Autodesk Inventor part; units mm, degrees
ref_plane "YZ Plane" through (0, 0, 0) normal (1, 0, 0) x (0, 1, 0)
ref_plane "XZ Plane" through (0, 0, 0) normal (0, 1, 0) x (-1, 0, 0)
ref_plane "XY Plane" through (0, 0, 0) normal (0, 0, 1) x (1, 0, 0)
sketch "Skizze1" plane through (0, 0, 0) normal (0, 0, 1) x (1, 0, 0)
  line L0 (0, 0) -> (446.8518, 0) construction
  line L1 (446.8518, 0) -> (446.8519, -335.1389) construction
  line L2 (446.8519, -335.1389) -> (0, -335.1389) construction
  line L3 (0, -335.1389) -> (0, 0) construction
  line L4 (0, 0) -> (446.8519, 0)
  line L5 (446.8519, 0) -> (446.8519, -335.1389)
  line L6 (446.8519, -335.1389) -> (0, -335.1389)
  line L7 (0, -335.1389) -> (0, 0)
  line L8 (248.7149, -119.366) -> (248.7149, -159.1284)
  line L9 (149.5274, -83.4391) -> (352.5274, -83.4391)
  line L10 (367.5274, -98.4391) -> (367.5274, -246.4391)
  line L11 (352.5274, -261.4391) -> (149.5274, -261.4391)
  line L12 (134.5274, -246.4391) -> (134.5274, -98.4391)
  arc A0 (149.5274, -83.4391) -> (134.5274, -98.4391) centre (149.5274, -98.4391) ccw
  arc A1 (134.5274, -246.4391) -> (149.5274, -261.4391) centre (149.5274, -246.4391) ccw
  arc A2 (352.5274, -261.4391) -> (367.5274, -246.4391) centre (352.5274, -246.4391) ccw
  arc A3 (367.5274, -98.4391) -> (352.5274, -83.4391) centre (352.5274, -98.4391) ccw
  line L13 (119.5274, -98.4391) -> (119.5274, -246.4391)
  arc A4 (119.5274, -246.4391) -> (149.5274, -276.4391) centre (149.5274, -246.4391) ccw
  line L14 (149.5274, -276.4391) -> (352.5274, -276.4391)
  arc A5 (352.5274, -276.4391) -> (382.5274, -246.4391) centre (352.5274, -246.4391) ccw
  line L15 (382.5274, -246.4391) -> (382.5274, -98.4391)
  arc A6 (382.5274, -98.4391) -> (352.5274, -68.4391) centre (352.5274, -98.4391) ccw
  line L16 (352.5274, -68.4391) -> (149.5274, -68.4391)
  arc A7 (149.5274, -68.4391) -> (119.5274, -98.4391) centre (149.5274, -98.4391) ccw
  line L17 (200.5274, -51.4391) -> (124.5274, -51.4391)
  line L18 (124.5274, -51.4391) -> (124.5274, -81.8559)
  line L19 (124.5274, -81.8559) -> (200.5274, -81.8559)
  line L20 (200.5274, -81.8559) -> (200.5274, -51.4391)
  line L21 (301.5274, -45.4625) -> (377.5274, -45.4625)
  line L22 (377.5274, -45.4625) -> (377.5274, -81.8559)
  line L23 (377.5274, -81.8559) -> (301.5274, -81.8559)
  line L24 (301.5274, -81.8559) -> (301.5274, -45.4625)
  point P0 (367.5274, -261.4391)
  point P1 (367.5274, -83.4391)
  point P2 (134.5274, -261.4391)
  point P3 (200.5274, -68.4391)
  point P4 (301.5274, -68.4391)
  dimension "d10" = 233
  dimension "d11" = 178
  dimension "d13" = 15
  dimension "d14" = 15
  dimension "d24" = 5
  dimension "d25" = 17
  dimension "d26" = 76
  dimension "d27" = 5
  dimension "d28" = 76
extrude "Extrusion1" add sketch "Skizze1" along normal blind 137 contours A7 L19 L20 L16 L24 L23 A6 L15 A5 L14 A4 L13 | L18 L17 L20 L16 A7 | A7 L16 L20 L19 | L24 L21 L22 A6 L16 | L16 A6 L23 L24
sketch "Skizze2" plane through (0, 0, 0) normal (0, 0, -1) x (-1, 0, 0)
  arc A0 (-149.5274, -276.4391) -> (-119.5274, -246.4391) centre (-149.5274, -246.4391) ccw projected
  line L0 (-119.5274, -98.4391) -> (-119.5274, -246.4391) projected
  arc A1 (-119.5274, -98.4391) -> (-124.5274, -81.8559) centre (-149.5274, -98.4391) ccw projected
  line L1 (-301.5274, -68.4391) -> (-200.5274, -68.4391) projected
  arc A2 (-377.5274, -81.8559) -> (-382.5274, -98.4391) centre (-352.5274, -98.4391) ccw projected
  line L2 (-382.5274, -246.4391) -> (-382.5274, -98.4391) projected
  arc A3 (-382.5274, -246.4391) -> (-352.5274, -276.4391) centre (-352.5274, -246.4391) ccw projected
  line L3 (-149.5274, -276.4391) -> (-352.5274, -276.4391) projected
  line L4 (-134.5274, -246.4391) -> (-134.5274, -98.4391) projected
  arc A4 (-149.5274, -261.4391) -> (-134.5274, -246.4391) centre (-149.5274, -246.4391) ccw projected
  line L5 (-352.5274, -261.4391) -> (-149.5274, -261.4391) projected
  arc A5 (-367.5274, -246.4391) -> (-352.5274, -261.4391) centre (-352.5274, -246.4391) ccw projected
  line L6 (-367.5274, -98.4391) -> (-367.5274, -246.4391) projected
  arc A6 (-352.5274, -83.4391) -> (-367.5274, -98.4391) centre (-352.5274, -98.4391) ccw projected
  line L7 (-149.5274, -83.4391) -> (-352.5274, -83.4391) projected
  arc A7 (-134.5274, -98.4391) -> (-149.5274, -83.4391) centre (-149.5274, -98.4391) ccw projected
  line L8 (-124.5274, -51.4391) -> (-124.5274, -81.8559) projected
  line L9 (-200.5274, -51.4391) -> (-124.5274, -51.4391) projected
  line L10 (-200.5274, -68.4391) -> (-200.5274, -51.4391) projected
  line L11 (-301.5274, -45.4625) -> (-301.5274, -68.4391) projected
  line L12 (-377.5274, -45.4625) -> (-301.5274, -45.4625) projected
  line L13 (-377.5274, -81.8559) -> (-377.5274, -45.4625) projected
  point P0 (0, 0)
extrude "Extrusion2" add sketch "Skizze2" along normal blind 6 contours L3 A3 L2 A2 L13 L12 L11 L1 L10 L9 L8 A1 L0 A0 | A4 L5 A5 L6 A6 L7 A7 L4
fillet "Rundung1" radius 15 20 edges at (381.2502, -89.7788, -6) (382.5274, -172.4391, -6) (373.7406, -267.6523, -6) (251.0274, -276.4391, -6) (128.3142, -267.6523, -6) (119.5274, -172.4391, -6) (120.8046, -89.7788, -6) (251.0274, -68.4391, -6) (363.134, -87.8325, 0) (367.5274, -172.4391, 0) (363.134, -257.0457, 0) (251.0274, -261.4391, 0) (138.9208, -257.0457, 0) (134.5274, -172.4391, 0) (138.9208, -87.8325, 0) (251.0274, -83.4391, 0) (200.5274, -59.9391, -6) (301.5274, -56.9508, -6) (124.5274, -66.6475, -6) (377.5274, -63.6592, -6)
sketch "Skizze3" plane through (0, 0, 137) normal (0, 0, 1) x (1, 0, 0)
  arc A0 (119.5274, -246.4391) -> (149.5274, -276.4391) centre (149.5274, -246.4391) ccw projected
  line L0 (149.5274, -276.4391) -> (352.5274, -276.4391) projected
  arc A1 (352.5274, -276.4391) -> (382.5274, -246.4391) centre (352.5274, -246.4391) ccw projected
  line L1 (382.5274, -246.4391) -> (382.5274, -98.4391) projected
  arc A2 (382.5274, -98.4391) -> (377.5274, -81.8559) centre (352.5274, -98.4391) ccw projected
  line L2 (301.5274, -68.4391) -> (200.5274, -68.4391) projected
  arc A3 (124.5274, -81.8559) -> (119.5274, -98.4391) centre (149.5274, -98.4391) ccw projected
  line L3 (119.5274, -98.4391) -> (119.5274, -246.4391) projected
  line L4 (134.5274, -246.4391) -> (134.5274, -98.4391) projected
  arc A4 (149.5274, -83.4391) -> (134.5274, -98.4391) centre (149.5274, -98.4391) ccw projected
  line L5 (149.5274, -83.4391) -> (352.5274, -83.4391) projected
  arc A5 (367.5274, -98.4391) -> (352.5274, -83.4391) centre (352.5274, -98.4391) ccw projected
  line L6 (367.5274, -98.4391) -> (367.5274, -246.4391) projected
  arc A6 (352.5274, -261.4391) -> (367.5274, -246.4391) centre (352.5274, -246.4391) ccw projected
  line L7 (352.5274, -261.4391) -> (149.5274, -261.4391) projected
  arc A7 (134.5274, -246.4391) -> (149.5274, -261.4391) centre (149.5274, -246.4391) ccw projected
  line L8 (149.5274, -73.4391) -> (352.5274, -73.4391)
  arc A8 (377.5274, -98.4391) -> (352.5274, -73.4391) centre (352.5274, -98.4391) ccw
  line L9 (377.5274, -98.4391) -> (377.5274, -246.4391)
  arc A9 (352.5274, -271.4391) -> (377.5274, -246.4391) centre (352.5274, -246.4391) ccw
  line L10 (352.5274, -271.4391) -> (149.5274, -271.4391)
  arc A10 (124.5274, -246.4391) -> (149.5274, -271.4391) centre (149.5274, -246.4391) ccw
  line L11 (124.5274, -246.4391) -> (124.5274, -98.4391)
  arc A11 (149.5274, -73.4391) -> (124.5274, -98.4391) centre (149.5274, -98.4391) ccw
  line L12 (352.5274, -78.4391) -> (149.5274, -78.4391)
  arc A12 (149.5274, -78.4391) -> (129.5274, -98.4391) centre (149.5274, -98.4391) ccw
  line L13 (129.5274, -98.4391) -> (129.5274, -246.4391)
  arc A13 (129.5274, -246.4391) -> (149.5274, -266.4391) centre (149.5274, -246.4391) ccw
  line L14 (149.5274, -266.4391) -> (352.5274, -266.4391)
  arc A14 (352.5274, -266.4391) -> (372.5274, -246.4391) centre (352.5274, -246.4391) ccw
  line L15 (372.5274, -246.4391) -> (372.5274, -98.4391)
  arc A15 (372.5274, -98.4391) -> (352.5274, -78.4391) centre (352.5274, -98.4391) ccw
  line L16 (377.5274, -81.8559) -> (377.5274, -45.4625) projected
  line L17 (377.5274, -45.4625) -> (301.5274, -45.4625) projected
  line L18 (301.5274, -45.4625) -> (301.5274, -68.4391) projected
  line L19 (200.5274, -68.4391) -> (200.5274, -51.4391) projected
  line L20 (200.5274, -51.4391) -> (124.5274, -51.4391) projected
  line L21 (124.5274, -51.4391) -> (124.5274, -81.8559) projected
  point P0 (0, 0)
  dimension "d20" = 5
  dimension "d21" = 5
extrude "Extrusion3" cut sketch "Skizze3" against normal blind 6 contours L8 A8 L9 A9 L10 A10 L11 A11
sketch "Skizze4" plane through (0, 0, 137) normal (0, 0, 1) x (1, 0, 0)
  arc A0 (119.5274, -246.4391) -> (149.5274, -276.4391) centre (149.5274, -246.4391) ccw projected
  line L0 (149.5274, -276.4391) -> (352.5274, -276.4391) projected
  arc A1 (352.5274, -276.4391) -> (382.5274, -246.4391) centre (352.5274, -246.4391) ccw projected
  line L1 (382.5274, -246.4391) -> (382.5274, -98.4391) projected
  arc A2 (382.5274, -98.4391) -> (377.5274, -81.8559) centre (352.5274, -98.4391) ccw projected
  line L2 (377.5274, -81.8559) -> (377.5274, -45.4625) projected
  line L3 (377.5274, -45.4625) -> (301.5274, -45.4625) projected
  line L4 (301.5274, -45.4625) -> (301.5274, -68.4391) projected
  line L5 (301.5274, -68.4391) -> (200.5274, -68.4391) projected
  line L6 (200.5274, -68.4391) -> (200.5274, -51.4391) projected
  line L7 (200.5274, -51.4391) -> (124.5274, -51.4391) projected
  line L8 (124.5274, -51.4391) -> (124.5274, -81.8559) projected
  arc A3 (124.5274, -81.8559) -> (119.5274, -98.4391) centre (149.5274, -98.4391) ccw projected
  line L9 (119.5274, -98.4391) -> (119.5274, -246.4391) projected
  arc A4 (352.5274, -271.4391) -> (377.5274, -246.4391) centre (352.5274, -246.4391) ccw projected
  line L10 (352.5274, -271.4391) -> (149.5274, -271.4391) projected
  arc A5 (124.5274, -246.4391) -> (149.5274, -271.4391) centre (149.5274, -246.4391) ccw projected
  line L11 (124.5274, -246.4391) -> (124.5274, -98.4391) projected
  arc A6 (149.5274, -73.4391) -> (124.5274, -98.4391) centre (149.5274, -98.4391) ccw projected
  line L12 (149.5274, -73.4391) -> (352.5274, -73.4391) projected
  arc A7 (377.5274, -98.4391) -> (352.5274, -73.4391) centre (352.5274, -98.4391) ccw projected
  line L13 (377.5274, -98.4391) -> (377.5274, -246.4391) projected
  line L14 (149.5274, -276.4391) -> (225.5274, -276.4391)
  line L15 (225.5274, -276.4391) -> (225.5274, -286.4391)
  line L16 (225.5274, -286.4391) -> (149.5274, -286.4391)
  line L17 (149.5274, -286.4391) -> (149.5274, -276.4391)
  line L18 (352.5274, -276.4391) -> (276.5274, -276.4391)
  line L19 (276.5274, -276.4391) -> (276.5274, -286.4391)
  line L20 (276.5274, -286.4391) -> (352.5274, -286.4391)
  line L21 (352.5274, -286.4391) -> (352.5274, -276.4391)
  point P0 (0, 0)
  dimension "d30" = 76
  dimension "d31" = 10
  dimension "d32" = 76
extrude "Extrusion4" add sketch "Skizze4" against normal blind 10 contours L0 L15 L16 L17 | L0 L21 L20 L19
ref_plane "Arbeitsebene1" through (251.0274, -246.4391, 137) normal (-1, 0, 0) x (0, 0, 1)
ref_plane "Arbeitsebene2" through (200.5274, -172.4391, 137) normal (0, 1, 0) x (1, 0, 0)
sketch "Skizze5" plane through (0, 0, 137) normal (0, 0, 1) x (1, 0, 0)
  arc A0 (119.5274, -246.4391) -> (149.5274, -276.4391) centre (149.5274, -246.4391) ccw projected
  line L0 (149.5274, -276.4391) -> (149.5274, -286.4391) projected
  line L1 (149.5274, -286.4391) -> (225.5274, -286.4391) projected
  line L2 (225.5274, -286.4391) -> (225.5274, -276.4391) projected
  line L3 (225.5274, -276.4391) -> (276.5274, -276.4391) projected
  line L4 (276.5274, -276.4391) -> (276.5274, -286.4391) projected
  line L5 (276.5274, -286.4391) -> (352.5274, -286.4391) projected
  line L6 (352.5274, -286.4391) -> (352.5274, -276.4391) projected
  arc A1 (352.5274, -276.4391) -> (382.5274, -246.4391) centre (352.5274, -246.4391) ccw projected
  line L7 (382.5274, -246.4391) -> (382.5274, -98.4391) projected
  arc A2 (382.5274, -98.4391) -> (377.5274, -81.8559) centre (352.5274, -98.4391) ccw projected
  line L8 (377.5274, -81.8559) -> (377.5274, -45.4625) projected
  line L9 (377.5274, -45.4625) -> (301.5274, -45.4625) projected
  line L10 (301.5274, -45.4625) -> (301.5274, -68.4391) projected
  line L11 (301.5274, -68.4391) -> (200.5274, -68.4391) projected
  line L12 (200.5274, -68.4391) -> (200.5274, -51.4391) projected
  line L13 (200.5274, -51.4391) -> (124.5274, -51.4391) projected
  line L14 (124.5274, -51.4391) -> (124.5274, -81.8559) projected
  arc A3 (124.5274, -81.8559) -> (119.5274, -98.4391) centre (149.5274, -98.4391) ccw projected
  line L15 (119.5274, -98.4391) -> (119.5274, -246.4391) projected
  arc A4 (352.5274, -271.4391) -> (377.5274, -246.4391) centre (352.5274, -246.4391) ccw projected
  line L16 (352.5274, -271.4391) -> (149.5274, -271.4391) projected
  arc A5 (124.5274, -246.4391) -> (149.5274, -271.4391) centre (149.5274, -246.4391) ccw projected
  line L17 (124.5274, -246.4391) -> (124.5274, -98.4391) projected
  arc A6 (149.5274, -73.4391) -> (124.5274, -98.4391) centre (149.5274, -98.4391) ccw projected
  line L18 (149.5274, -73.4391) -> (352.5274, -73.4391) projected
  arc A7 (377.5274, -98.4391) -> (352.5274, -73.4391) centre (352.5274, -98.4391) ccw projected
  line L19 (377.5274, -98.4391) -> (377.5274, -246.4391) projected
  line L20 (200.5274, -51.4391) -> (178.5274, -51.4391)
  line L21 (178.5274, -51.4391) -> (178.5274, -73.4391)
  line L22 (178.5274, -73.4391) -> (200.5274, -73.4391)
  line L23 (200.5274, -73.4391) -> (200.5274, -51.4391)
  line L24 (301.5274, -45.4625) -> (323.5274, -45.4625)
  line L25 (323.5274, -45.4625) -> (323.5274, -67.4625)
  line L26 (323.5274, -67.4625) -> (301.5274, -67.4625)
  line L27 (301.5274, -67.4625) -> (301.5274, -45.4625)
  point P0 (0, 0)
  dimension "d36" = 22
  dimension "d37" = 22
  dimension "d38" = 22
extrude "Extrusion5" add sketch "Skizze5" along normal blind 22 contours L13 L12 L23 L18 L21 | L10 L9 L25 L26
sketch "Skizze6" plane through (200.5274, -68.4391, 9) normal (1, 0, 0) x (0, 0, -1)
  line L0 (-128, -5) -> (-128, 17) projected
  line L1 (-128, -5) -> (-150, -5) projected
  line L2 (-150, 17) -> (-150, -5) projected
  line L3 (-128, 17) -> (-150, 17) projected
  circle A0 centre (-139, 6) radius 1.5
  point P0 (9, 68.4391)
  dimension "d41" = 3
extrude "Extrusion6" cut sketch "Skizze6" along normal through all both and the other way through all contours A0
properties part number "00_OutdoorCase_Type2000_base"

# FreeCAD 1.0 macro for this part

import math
import FreeCAD as App
import Part
import Sketcher

V = App.Vector


def edges_at(feature, points):
    """Names of the edges that pass closest to the given points."""
    edges = feature.Shape.Edges
    near = lambda p: min(range(len(edges)), key=lambda i: edges[i].distToShape(Part.Vertex(*p))[0])
    return sorted({f"Edge{near(p) + 1}" for p in points})


def add_polygon(sketch, points):
    """Adds a closed chain of lines whose ends are joined by coincident constraints."""
    first, n = sketch.GeometryCount, len(points)
    for a, b in zip(points, points[1:] + points[:1]):
        sketch.addGeometry(Part.LineSegment(App.Vector(*a, 0), App.Vector(*b, 0)), False)
    for i in range(n):
        sketch.addConstraint(Sketcher.Constraint("Coincident", first + i, 2, first + (i + 1) % n, 1))

doc = App.newDocument("Part")
body = doc.addObject("PartDesign::Body", "Body")

sketch1 = doc.addObject("Sketcher::SketchObject", "Sketch")
body.addObject(sketch1)
sketch1.AttachmentSupport = (doc.XY_Plane, [""])
sketch1.MapMode = "FlatFace"
sketch1.addGeometry(Part.ArcOfCircle(Part.Circle(V(150, -98, 0), V(0, 0, 1), 30), math.radians(146), math.radians(180)), False)
sketch1.addGeometry(Part.LineSegment(V(120, -98, 0), V(120, -246, 0)), False)
sketch1.addGeometry(Part.ArcOfCircle(Part.Circle(V(150, -246, 0), V(0, 0, 1), 30), math.radians(180), math.radians(270)), False)
sketch1.addGeometry(Part.LineSegment(V(150, -276, 0), V(353, -276, 0)), False)
sketch1.addGeometry(Part.ArcOfCircle(Part.Circle(V(353, -246, 0), V(0, 0, 1), 30), math.radians(-90), math.radians(0)), False)
sketch1.addGeometry(Part.LineSegment(V(383, -246, 0), V(383, -98, 0)), False)
sketch1.addGeometry(Part.ArcOfCircle(Part.Circle(V(353, -98, 0), V(0, 0, 1), 30), math.radians(0), math.radians(34)), False)
sketch1.addGeometry(Part.LineSegment(V(378, -82, 0), V(378, -45, 0)), False)
sketch1.addGeometry(Part.LineSegment(V(378, -45, 0), V(302, -45, 0)), False)
sketch1.addGeometry(Part.LineSegment(V(302, -45, 0), V(302, -68, 0)), False)
sketch1.addGeometry(Part.LineSegment(V(302, -68, 0), V(201, -68, 0)), False)
sketch1.addGeometry(Part.LineSegment(V(201, -68, 0), V(201, -51, 0)), False)
sketch1.addGeometry(Part.LineSegment(V(201, -51, 0), V(125, -51, 0)), False)
sketch1.addGeometry(Part.LineSegment(V(125, -51, 0), V(125, -82, 0)), False)
sketch1.addGeometry(Part.ArcOfCircle(Part.Circle(V(150, -98, 0), V(0, 0, 1), 15), math.radians(90), math.radians(180)), False)
sketch1.addGeometry(Part.LineSegment(V(150, -83, 0), V(353, -83, 0)), False)
sketch1.addGeometry(Part.ArcOfCircle(Part.Circle(V(353, -98, 0), V(0, 0, 1), 15), math.radians(0), math.radians(90)), False)
sketch1.addGeometry(Part.LineSegment(V(368, -98, 0), V(368, -246, 0)), False)
sketch1.addGeometry(Part.ArcOfCircle(Part.Circle(V(353, -246, 0), V(0, 0, 1), 15), math.radians(-90), math.radians(0)), False)
sketch1.addGeometry(Part.LineSegment(V(353, -261, 0), V(150, -261, 0)), False)
sketch1.addGeometry(Part.ArcOfCircle(Part.Circle(V(150, -246, 0), V(0, 0, 1), 15), math.radians(180), math.radians(270)), False)
sketch1.addGeometry(Part.LineSegment(V(135, -246, 0), V(135, -98, 0)), False)
sketch1.addConstraint(Sketcher.Constraint("Tangent", 0, 2, 1, 1))
sketch1.addConstraint(Sketcher.Constraint("Tangent", 1, 2, 2, 1))
sketch1.addConstraint(Sketcher.Constraint("Tangent", 2, 2, 3, 1))
sketch1.addConstraint(Sketcher.Constraint("Tangent", 3, 2, 4, 1))
sketch1.addConstraint(Sketcher.Constraint("Tangent", 4, 2, 5, 1))
sketch1.addConstraint(Sketcher.Constraint("Tangent", 5, 2, 6, 1))
sketch1.addConstraint(Sketcher.Constraint("Coincident", 6, 2, 7, 1))
sketch1.addConstraint(Sketcher.Constraint("Coincident", 7, 2, 8, 1))
sketch1.addConstraint(Sketcher.Constraint("Coincident", 8, 2, 9, 1))
sketch1.addConstraint(Sketcher.Constraint("Coincident", 9, 2, 10, 1))
sketch1.addConstraint(Sketcher.Constraint("Coincident", 10, 2, 11, 1))
sketch1.addConstraint(Sketcher.Constraint("Coincident", 11, 2, 12, 1))
sketch1.addConstraint(Sketcher.Constraint("Coincident", 12, 2, 13, 1))
sketch1.addConstraint(Sketcher.Constraint("Coincident", 13, 2, 0, 1))
sketch1.addConstraint(Sketcher.Constraint("Tangent", 14, 1, 15, 1))
sketch1.addConstraint(Sketcher.Constraint("Tangent", 15, 2, 16, 2))
sketch1.addConstraint(Sketcher.Constraint("Tangent", 16, 1, 17, 1))
sketch1.addConstraint(Sketcher.Constraint("Tangent", 17, 2, 18, 2))
sketch1.addConstraint(Sketcher.Constraint("Tangent", 18, 1, 19, 1))
sketch1.addConstraint(Sketcher.Constraint("Tangent", 19, 2, 20, 2))
sketch1.addConstraint(Sketcher.Constraint("Tangent", 20, 1, 21, 1))
sketch1.addConstraint(Sketcher.Constraint("Tangent", 21, 2, 14, 2))
sketch1.addConstraint(Sketcher.Constraint("Vertical", 1))
sketch1.addConstraint(Sketcher.Constraint("Horizontal", 3))
sketch1.addConstraint(Sketcher.Constraint("Vertical", 5))
sketch1.addConstraint(Sketcher.Constraint("Vertical", 7))
sketch1.addConstraint(Sketcher.Constraint("Horizontal", 8))
sketch1.addConstraint(Sketcher.Constraint("Vertical", 9))
sketch1.addConstraint(Sketcher.Constraint("Horizontal", 10))
sketch1.addConstraint(Sketcher.Constraint("Vertical", 11))
sketch1.addConstraint(Sketcher.Constraint("Horizontal", 12))
sketch1.addConstraint(Sketcher.Constraint("Vertical", 13))
sketch1.addConstraint(Sketcher.Constraint("Horizontal", 15))
sketch1.addConstraint(Sketcher.Constraint("Vertical", 17))
sketch1.addConstraint(Sketcher.Constraint("Horizontal", 19))
sketch1.addConstraint(Sketcher.Constraint("Vertical", 21))
sketch1.addConstraint(Sketcher.Constraint("Coincident", 14, 3, 0, 3))
sketch1.addConstraint(Sketcher.Constraint("Coincident", 16, 3, 6, 3))
sketch1.addConstraint(Sketcher.Constraint("Coincident", 18, 3, 4, 3))
sketch1.addConstraint(Sketcher.Constraint("Coincident", 20, 3, 2, 3))
sketch1.addConstraint(Sketcher.Constraint("Equal", 0, 2))
sketch1.addConstraint(Sketcher.Constraint("Equal", 2, 4))
sketch1.addConstraint(Sketcher.Constraint("Equal", 4, 6))
sketch1.addConstraint(Sketcher.Constraint("Horizontal", 6, 2, 13, 2))
sketch1.addConstraint(Sketcher.Constraint("Equal", 8, 12))
sketch1.addConstraint(Sketcher.Constraint("Radius", 14, 15.0))
sketch1.addConstraint(Sketcher.Constraint("DistanceX", 8, 2, 8, 1, 76.0))
sketch1.addConstraint(Sketcher.Constraint("DistanceY", 11, 1, 11, 2, 17.0))
sketch1.addConstraint(Sketcher.Constraint("Radius", 0, 30.0))
sketch1.addConstraint(Sketcher.Constraint("DistanceX", 0, 2, 6, 3, 233.0))
sketch1.addConstraint(Sketcher.Constraint("DistanceY", 2, 2, 0, 3, 178.0))
sketch1.addConstraint(Sketcher.Constraint("DistanceX", 6, 2, 5, 2, 5.0))
sketch1.addConstraint(Sketcher.Constraint("DistanceY", 6, 3, 9, 2, 30.0))
sketch1.addConstraint(Sketcher.Constraint("DistanceY", 7, 1, 7, 2, 36.3934))
sketch1.addConstraint(Sketcher.Constraint("DistanceY", 0, 3, -1, 1, 98.439))
sketch1.addConstraint(Sketcher.Constraint("DistanceX", -1, 1, 0, 3, 149.5274))
pad1 = doc.addObject("PartDesign::Pad", "Pad")
body.addObject(pad1)
pad1.Profile = sketch1
pad1.Length = 137

sketch2 = doc.addObject("Sketcher::SketchObject", "Sketch001")
body.addObject(sketch2)
sketch2.AttachmentSupport = (doc.XY_Plane, [""])
sketch2.MapMode = "FlatFace"
sketch2.addGeometry(Part.LineSegment(V(353, -276, 0), V(150, -276, 0)), False)
sketch2.addGeometry(Part.ArcOfCircle(Part.Circle(V(150, -246, 0), V(0, 0, 1), 30), math.radians(180), math.radians(270)), False)
sketch2.addGeometry(Part.LineSegment(V(120, -246, 0), V(120, -98, 0)), False)
sketch2.addGeometry(Part.ArcOfCircle(Part.Circle(V(150, -98, 0), V(0, 0, 1), 30), math.radians(146), math.radians(180)), False)
sketch2.addGeometry(Part.LineSegment(V(125, -82, 0), V(125, -51, 0)), False)
sketch2.addGeometry(Part.LineSegment(V(125, -51, 0), V(201, -51, 0)), False)
sketch2.addGeometry(Part.LineSegment(V(201, -51, 0), V(201, -68, 0)), False)
sketch2.addGeometry(Part.LineSegment(V(201, -68, 0), V(302, -68, 0)), False)
sketch2.addGeometry(Part.LineSegment(V(302, -68, 0), V(302, -45, 0)), False)
sketch2.addGeometry(Part.LineSegment(V(302, -45, 0), V(378, -45, 0)), False)
sketch2.addGeometry(Part.LineSegment(V(378, -45, 0), V(378, -82, 0)), False)
sketch2.addGeometry(Part.ArcOfCircle(Part.Circle(V(353, -98, 0), V(0, 0, 1), 30), math.radians(0), math.radians(34)), False)
sketch2.addGeometry(Part.LineSegment(V(383, -98, 0), V(383, -246, 0)), False)
sketch2.addGeometry(Part.ArcOfCircle(Part.Circle(V(353, -246, 0), V(0, 0, 1), 30), math.radians(-90), math.radians(0)), False)
sketch2.addConstraint(Sketcher.Constraint("Tangent", 0, 2, 1, 2))
sketch2.addConstraint(Sketcher.Constraint("Tangent", 1, 1, 2, 1))
sketch2.addConstraint(Sketcher.Constraint("Tangent", 2, 2, 3, 2))
sketch2.addConstraint(Sketcher.Constraint("Coincident", 3, 1, 4, 1))
sketch2.addConstraint(Sketcher.Constraint("Coincident", 4, 2, 5, 1))
sketch2.addConstraint(Sketcher.Constraint("Coincident", 5, 2, 6, 1))
sketch2.addConstraint(Sketcher.Constraint("Coincident", 6, 2, 7, 1))
sketch2.addConstraint(Sketcher.Constraint("Coincident", 7, 2, 8, 1))
sketch2.addConstraint(Sketcher.Constraint("Coincident", 8, 2, 9, 1))
sketch2.addConstraint(Sketcher.Constraint("Coincident", 9, 2, 10, 1))
sketch2.addConstraint(Sketcher.Constraint("Coincident", 10, 2, 11, 2))
sketch2.addConstraint(Sketcher.Constraint("Tangent", 11, 1, 12, 1))
sketch2.addConstraint(Sketcher.Constraint("Tangent", 12, 2, 13, 2))
sketch2.addConstraint(Sketcher.Constraint("Tangent", 13, 1, 0, 1))
sketch2.addConstraint(Sketcher.Constraint("Horizontal", 0))
sketch2.addConstraint(Sketcher.Constraint("Vertical", 2))
sketch2.addConstraint(Sketcher.Constraint("Vertical", 4))
sketch2.addConstraint(Sketcher.Constraint("Horizontal", 5))
sketch2.addConstraint(Sketcher.Constraint("Vertical", 6))
sketch2.addConstraint(Sketcher.Constraint("Horizontal", 7))
sketch2.addConstraint(Sketcher.Constraint("Vertical", 8))
sketch2.addConstraint(Sketcher.Constraint("Horizontal", 9))
sketch2.addConstraint(Sketcher.Constraint("Vertical", 10))
sketch2.addConstraint(Sketcher.Constraint("Vertical", 12))
sketch2.addConstraint(Sketcher.Constraint("Equal", 1, 3))
sketch2.addConstraint(Sketcher.Constraint("Equal", 3, 11))
sketch2.addConstraint(Sketcher.Constraint("Equal", 11, 13))
sketch2.addConstraint(Sketcher.Constraint("Horizontal", 3, 3, 11, 3))
sketch2.addConstraint(Sketcher.Constraint("Horizontal", 3, 1, 10, 2))
sketch2.addConstraint(Sketcher.Constraint("Equal", 5, 9))
sketch2.addConstraint(Sketcher.Constraint("Radius", 1, 30.0))
sketch2.addConstraint(Sketcher.Constraint("DistanceX", 0, 2, 0, 1, 203.0))
sketch2.addConstraint(Sketcher.Constraint("DistanceX", 5, 1, 5, 2, 76.0))
sketch2.addConstraint(Sketcher.Constraint("DistanceX", 7, 1, 7, 2, 101.0))
sketch2.addConstraint(Sketcher.Constraint("DistanceY", 2, 1, 2, 2, 148.0))
sketch2.addConstraint(Sketcher.Constraint("DistanceY", 6, 2, 6, 1, 17.0))
sketch2.addConstraint(Sketcher.Constraint("DistanceY", 2, 2, 4, 2, 47.0))
sketch2.addConstraint(Sketcher.Constraint("DistanceY", 8, 1, 8, 2, 22.9766))
sketch2.addConstraint(Sketcher.Constraint("DistanceY", 1, 3, -1, 1, 246.439))
sketch2.addConstraint(Sketcher.Constraint("DistanceX", -1, 1, 1, 3, 149.5274))
pad2 = doc.addObject("PartDesign::Pad", "Pad001")
body.addObject(pad2)
pad2.Profile = sketch2
pad2.Length = 6
pad2.Reversed = True
doc.recompute()

fillet = doc.addObject("PartDesign::Fillet", "Fillet")
body.addObject(fillet)
fillet.Base = (pad2, edges_at(pad2, [
    (381.25, -89.779, -6),
    (382.527, -172.439, -6),
    (373.741, -267.652, -6),
    (251.027, -276.439, -6),
    (128.314, -267.652, -6),
    (119.527, -172.439, -6),
    (120.805, -89.779, -6),
    (251.027, -68.439, -6),
    (363.134, -87.832, 0),
    (367.527, -172.439, 0),
    (363.134, -257.046, 0),
    (251.027, -261.439, 0),
    (138.921, -257.046, 0),
    (134.527, -172.439, 0),
    (138.921, -87.832, 0),
    (251.027, -83.439, 0),
    (200.527, -59.939, -6),
    (301.527, -56.951, -6),
    (124.527, -66.647, -6),
    (377.527, -63.659, -6),
]))
fillet.Radius = 15

sketch3 = doc.addObject("Sketcher::SketchObject", "Sketch002")
body.addObject(sketch3)
sketch3.AttachmentSupport = (doc.XY_Plane, [""])
sketch3.MapMode = "FlatFace"
sketch3.AttachmentOffset = App.Placement(V(0, 0, 137), App.Rotation())
sketch3.addGeometry(Part.LineSegment(V(353, -73, 0), V(150, -73, 0)), False)
sketch3.addGeometry(Part.ArcOfCircle(Part.Circle(V(150, -98, 0), V(0, 0, 1), 25), math.radians(90), math.radians(180)), False)
sketch3.addGeometry(Part.LineSegment(V(125, -98, 0), V(125, -246, 0)), False)
sketch3.addGeometry(Part.ArcOfCircle(Part.Circle(V(150, -246, 0), V(0, 0, 1), 25), math.radians(180), math.radians(270)), False)
sketch3.addGeometry(Part.LineSegment(V(150, -271, 0), V(353, -271, 0)), False)
sketch3.addGeometry(Part.ArcOfCircle(Part.Circle(V(353, -246, 0), V(0, 0, 1), 25), math.radians(-90), math.radians(0)), False)
sketch3.addGeometry(Part.LineSegment(V(378, -246, 0), V(378, -98, 0)), False)
sketch3.addGeometry(Part.ArcOfCircle(Part.Circle(V(353, -98, 0), V(0, 0, 1), 25), math.radians(0), math.radians(90)), False)
sketch3.addGeometry(Part.LineSegment(V(150, -78, 0), V(353, -78, 0)), False)
sketch3.addGeometry(Part.ArcOfCircle(Part.Circle(V(353, -98, 0), V(0, 0, 1), 20), math.radians(0), math.radians(90)), False)
sketch3.addGeometry(Part.LineSegment(V(373, -98, 0), V(373, -246, 0)), False)
sketch3.addGeometry(Part.ArcOfCircle(Part.Circle(V(353, -246, 0), V(0, 0, 1), 20), math.radians(-90), math.radians(0)), False)
sketch3.addGeometry(Part.LineSegment(V(353, -266, 0), V(150, -266, 0)), False)
sketch3.addGeometry(Part.ArcOfCircle(Part.Circle(V(150, -246, 0), V(0, 0, 1), 20), math.radians(180), math.radians(270)), False)
sketch3.addGeometry(Part.LineSegment(V(130, -246, 0), V(130, -98, 0)), False)
sketch3.addGeometry(Part.ArcOfCircle(Part.Circle(V(150, -98, 0), V(0, 0, 1), 20), math.radians(90), math.radians(180)), False)
sketch3.addConstraint(Sketcher.Constraint("Tangent", 0, 2, 1, 1))
sketch3.addConstraint(Sketcher.Constraint("Tangent", 1, 2, 2, 1))
sketch3.addConstraint(Sketcher.Constraint("Tangent", 2, 2, 3, 1))
sketch3.addConstraint(Sketcher.Constraint("Tangent", 3, 2, 4, 1))
sketch3.addConstraint(Sketcher.Constraint("Tangent", 4, 2, 5, 1))
sketch3.addConstraint(Sketcher.Constraint("Tangent", 5, 2, 6, 1))
sketch3.addConstraint(Sketcher.Constraint("Tangent", 6, 2, 7, 1))
sketch3.addConstraint(Sketcher.Constraint("Tangent", 7, 2, 0, 1))
sketch3.addConstraint(Sketcher.Constraint("Tangent", 8, 2, 9, 2))
sketch3.addConstraint(Sketcher.Constraint("Tangent", 9, 1, 10, 1))
sketch3.addConstraint(Sketcher.Constraint("Tangent", 10, 2, 11, 2))
sketch3.addConstraint(Sketcher.Constraint("Tangent", 11, 1, 12, 1))
sketch3.addConstraint(Sketcher.Constraint("Tangent", 12, 2, 13, 2))
sketch3.addConstraint(Sketcher.Constraint("Tangent", 13, 1, 14, 1))
sketch3.addConstraint(Sketcher.Constraint("Tangent", 14, 2, 15, 2))
sketch3.addConstraint(Sketcher.Constraint("Tangent", 15, 1, 8, 1))
sketch3.addConstraint(Sketcher.Constraint("Horizontal", 0))
sketch3.addConstraint(Sketcher.Constraint("Vertical", 2))
sketch3.addConstraint(Sketcher.Constraint("Horizontal", 4))
sketch3.addConstraint(Sketcher.Constraint("Vertical", 6))
sketch3.addConstraint(Sketcher.Constraint("Horizontal", 8))
sketch3.addConstraint(Sketcher.Constraint("Vertical", 10))
sketch3.addConstraint(Sketcher.Constraint("Horizontal", 12))
sketch3.addConstraint(Sketcher.Constraint("Vertical", 14))
sketch3.addConstraint(Sketcher.Constraint("Coincident", 9, 3, 7, 3))
sketch3.addConstraint(Sketcher.Constraint("Coincident", 11, 3, 5, 3))
sketch3.addConstraint(Sketcher.Constraint("Coincident", 13, 3, 3, 3))
sketch3.addConstraint(Sketcher.Constraint("Equal", 1, 3))
sketch3.addConstraint(Sketcher.Constraint("Equal", 3, 5))
sketch3.addConstraint(Sketcher.Constraint("Equal", 5, 7))
sketch3.addConstraint(Sketcher.Constraint("Equal", 13, 15))
sketch3.addConstraint(Sketcher.Constraint("Radius", 1, 25.0))
sketch3.addConstraint(Sketcher.Constraint("Radius", 9, 20.0))
sketch3.addConstraint(Sketcher.Constraint("DistanceX", 0, 2, 0, 1, 203.0))
sketch3.addConstraint(Sketcher.Constraint("DistanceY", 2, 2, 2, 1, 148.0))
sketch3.addConstraint(Sketcher.Constraint("DistanceY", 1, 3, -1, 1, 98.439))
sketch3.addConstraint(Sketcher.Constraint("DistanceX", -1, 1, 1, 3, 149.5274))
pocket1 = doc.addObject("PartDesign::Pocket", "Pocket")
body.addObject(pocket1)
pocket1.Profile = sketch3
pocket1.Length = 6

sketch4 = doc.addObject("Sketcher::SketchObject", "Sketch003")
body.addObject(sketch4)
sketch4.AttachmentSupport = (doc.XY_Plane, [""])
sketch4.MapMode = "FlatFace"
sketch4.AttachmentOffset = App.Placement(V(0, 0, 137), App.Rotation())
add_polygon(sketch4, [(226, -276), (150, -276), (150, -286), (226, -286)])
add_polygon(sketch4, [(353, -276), (277, -276), (277, -286), (353, -286)])
sketch4.addConstraint(Sketcher.Constraint("Horizontal", 0))
sketch4.addConstraint(Sketcher.Constraint("Vertical", 1))
sketch4.addConstraint(Sketcher.Constraint("Horizontal", 2))
sketch4.addConstraint(Sketcher.Constraint("Vertical", 3))
sketch4.addConstraint(Sketcher.Constraint("Horizontal", 4))
sketch4.addConstraint(Sketcher.Constraint("Vertical", 5))
sketch4.addConstraint(Sketcher.Constraint("Horizontal", 6))
sketch4.addConstraint(Sketcher.Constraint("Vertical", 7))
sketch4.addConstraint(Sketcher.Constraint("Horizontal", 3, 2, 4, 2))
sketch4.addConstraint(Sketcher.Constraint("Horizontal", 2, 2, 5, 2))
sketch4.addConstraint(Sketcher.Constraint("Equal", 2, 4))
sketch4.addConstraint(Sketcher.Constraint("DistanceX", 0, 2, 0, 1, 76.0))
sketch4.addConstraint(Sketcher.Constraint("DistanceY", 1, 2, 1, 1, 10.0))
sketch4.addConstraint(Sketcher.Constraint("DistanceX", 3, 2, 4, 2, 51.0))
sketch4.addConstraint(Sketcher.Constraint("DistanceY", 0, 2, -1, 1, 276.439))
sketch4.addConstraint(Sketcher.Constraint("DistanceX", -1, 1, 0, 2, 149.5274))
pad3 = doc.addObject("PartDesign::Pad", "Pad002")
body.addObject(pad3)
pad3.Profile = sketch4
pad3.Length = 10
pad3.Reversed = True

sketch5 = doc.addObject("Sketcher::SketchObject", "Sketch004")
body.addObject(sketch5)
sketch5.AttachmentSupport = (doc.XY_Plane, [""])
sketch5.MapMode = "FlatFace"
sketch5.AttachmentOffset = App.Placement(V(0, 0, 137), App.Rotation())
add_polygon(sketch5, [(201, -51), (179, -51), (179, -73), (201, -73)])
add_polygon(sketch5, [(302, -45), (302, -67), (324, -67), (324, -45)])
sketch5.addConstraint(Sketcher.Constraint("Horizontal", 0))
sketch5.addConstraint(Sketcher.Constraint("Vertical", 1))
sketch5.addConstraint(Sketcher.Constraint("Horizontal", 2))
sketch5.addConstraint(Sketcher.Constraint("Vertical", 3))
sketch5.addConstraint(Sketcher.Constraint("Vertical", 4))
sketch5.addConstraint(Sketcher.Constraint("Horizontal", 5))
sketch5.addConstraint(Sketcher.Constraint("Vertical", 6))
sketch5.addConstraint(Sketcher.Constraint("Horizontal", 7))
sketch5.addConstraint(Sketcher.Constraint("Equal", 2, 5))
sketch5.addConstraint(Sketcher.Constraint("Equal", 7, 1))
sketch5.addConstraint(Sketcher.Constraint("Equal", 3, 4))
sketch5.addConstraint(Sketcher.Constraint("DistanceX", 0, 2, 0, 1, 22.0))
sketch5.addConstraint(Sketcher.Constraint("DistanceX", 2, 2, 4, 2, 101.0))
sketch5.addConstraint(Sketcher.Constraint("DistanceY", 0, 2, -1, 1, 51.439))
sketch5.addConstraint(Sketcher.Constraint("DistanceX", -1, 1, 0, 2, 178.5274))
sketch5.addConstraint(Sketcher.Constraint("DistanceY", 4, 2, -1, 1, 67.4625))
pad4 = doc.addObject("PartDesign::Pad", "Pad003")
body.addObject(pad4)
pad4.Profile = sketch5
pad4.Length = 22

sketch6 = doc.addObject("Sketcher::SketchObject", "Sketch005")
body.addObject(sketch6)
sketch6.AttachmentSupport = (doc.YZ_Plane, [""])
sketch6.MapMode = "FlatFace"
sketch6.AttachmentOffset = App.Placement(V(0, 0, 200.5274), App.Rotation())
sketch6.addGeometry(Part.Circle(V(-62.4, 148, 0), V(0, 0, 1), 1.5), False)
sketch6.addConstraint(Sketcher.Constraint("Diameter", 0, 3.0))
sketch6.addConstraint(Sketcher.Constraint("DistanceY", -1, 1, 0, 3, 148.0))
sketch6.addConstraint(Sketcher.Constraint("DistanceX", 0, 3, -1, 1, 62.439))
pocket2 = doc.addObject("PartDesign::Pocket", "Pocket001")
body.addObject(pocket2)
pocket2.Profile = sketch6
pocket2.Type = "ThroughAll"
pocket2.Midplane = True

doc.recompute()
